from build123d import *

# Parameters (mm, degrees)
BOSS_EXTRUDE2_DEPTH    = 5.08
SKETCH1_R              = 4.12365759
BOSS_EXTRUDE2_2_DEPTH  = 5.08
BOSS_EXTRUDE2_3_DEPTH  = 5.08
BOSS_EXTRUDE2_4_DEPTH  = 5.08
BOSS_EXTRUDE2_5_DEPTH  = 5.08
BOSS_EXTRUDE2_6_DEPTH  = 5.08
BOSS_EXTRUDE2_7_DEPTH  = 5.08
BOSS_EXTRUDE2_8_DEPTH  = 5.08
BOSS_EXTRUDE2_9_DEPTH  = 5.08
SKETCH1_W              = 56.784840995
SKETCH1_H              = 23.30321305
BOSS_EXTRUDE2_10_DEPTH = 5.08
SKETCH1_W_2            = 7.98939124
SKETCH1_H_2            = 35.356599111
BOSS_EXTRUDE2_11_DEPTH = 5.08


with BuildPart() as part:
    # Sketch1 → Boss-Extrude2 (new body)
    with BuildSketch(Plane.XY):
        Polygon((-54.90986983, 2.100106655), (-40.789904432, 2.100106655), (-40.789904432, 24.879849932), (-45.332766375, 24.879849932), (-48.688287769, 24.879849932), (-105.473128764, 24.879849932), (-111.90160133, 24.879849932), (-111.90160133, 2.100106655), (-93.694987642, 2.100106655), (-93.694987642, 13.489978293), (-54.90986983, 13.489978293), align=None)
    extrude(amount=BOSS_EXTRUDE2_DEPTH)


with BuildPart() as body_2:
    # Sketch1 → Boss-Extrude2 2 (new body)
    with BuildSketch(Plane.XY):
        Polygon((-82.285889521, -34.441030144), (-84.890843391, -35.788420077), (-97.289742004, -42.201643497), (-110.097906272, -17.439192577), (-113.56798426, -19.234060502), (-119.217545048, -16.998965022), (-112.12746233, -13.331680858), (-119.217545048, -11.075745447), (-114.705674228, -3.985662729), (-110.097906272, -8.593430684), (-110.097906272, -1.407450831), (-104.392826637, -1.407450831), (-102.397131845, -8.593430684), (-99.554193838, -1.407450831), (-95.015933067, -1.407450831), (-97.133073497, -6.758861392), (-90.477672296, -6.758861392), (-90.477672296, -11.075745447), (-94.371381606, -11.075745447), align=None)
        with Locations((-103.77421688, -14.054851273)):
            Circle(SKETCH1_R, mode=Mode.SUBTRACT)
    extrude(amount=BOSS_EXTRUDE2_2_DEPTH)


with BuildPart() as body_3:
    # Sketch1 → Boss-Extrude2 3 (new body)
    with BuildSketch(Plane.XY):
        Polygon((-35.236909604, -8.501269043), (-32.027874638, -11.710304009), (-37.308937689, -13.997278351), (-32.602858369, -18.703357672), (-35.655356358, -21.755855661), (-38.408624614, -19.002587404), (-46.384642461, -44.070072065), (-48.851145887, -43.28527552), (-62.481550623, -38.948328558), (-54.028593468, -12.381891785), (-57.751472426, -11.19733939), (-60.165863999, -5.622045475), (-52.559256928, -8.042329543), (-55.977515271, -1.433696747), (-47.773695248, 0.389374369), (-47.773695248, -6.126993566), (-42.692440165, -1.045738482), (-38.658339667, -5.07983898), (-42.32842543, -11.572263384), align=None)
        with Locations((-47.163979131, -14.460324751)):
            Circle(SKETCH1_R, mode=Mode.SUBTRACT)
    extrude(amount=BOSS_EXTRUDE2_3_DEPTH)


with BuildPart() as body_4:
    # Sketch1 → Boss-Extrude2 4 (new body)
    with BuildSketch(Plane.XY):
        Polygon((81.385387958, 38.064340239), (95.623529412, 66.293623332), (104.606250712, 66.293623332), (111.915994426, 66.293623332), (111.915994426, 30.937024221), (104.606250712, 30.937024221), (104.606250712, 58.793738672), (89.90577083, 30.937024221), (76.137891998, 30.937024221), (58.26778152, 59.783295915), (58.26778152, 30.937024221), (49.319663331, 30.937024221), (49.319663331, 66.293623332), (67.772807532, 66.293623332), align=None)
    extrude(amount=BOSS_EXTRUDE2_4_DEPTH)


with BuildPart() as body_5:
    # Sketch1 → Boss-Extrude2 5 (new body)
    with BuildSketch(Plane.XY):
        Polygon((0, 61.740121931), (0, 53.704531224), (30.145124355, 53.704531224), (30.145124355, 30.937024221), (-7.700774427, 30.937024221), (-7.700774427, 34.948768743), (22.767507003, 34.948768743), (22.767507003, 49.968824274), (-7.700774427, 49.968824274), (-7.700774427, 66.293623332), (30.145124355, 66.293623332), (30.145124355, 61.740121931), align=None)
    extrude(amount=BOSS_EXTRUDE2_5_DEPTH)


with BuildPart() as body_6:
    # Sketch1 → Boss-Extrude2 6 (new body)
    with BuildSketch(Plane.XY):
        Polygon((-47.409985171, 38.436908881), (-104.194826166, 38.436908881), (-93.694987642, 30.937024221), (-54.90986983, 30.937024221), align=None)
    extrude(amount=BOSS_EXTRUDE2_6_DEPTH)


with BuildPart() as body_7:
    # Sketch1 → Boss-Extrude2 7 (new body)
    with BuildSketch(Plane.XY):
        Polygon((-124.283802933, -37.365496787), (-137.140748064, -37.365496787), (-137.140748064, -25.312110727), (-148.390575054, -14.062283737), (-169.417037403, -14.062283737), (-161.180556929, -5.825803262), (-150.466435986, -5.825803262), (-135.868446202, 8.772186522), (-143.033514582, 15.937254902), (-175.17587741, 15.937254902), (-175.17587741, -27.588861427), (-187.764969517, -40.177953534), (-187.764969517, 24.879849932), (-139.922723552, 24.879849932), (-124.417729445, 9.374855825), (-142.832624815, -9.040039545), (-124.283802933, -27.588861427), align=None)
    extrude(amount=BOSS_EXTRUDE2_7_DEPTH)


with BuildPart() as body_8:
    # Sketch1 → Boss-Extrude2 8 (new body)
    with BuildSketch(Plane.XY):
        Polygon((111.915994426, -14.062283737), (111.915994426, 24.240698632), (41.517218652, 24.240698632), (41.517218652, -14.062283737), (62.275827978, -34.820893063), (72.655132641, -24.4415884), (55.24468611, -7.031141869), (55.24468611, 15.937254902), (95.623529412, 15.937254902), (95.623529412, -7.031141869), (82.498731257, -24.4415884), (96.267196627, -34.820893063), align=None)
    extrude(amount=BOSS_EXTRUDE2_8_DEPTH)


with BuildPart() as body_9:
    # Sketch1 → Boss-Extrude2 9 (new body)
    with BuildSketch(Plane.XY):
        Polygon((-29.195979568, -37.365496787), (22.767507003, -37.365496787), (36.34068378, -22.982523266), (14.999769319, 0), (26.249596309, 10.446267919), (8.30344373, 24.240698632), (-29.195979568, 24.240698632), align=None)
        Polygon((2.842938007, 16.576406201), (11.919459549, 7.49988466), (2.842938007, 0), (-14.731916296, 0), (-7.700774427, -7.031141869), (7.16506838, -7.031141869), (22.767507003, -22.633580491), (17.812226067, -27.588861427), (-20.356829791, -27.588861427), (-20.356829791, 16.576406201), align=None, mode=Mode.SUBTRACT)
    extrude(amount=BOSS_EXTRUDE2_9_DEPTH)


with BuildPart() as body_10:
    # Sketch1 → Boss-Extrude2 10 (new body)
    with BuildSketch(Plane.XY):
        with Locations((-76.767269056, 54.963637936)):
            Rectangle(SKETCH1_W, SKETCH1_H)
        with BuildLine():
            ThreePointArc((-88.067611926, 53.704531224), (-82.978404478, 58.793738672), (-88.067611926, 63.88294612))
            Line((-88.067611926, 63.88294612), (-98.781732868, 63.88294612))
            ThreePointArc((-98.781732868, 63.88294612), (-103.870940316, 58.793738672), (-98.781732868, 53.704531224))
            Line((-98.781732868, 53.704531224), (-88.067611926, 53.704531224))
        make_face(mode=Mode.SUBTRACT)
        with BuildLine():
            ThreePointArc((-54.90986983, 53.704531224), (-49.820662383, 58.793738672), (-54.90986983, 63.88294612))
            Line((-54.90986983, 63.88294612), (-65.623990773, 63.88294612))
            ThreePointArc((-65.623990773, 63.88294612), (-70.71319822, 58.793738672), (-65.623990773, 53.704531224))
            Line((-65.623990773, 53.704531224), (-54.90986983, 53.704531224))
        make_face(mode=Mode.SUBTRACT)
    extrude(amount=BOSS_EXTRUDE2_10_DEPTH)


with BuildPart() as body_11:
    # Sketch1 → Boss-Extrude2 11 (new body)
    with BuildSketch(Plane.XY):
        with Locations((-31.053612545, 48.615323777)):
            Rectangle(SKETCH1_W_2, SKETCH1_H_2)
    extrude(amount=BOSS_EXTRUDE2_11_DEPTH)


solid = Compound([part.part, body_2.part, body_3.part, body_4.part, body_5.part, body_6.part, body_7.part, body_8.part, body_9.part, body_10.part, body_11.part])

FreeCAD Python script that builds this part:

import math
import FreeCAD as App
import Part
import Sketcher

V = App.Vector
Q = App.Units.Quantity


def add_polygon(sketch, points):
    """Adds a closed chain of lines whose ends are joined by coincident constraints."""
    first, n = sketch.GeometryCount, len(points)
    for a, b in zip(points, points[1:] + points[:1]):
        sketch.addGeometry(Part.LineSegment(App.Vector(*a, 0), App.Vector(*b, 0)), False)
    for i in range(n):
        sketch.addConstraint(Sketcher.Constraint("Coincident", first + i, 2, first + (i + 1) % n, 1))

doc = App.newDocument("Part")
body = doc.addObject("PartDesign::Body", "Body")

sketch1 = body.newObject("Sketcher::SketchObject", "Sketch")
sketch1.AttachmentSupport = (doc.getObject("XY_Plane"), [""])
sketch1.MapMode = "FlatFace"
add_polygon(sketch1, [(-55, 2), (-41, 2), (-41, 25), (-112, 25), (-112, 2), (-94, 2), (-94, 13), (-55, 13)])
sketch1.addConstraint([
    Sketcher.Constraint("Horizontal", 0),
    Sketcher.Constraint("Vertical", 1),
    Sketcher.Constraint("Horizontal", 2),
    Sketcher.Constraint("Vertical", 3),
    Sketcher.Constraint("Horizontal", 4),
    Sketcher.Constraint("Vertical", 5),
    Sketcher.Constraint("Horizontal", 6),
    Sketcher.Constraint("Vertical", 7),
    Sketcher.Constraint("Horizontal", 0, 2, 3, 2),
    Sketcher.Constraint("DistanceY", 5, 1, 5, 2, 11.389872),
    Sketcher.Constraint("DistanceX", 2, 2, -1, 1, 111.901601),
    Sketcher.Constraint("DistanceX", 0, 1, 0, 2, 14.119965),
    Sketcher.Constraint("DistanceX", 2, 2, 2, 1, 71.111697),
    Sketcher.Constraint("DistanceX", 4, 1, 4, 2, 18.206614),
    Sketcher.Constraint("DistanceY", 1, 1, 1, 2, 22.779743),
    Sketcher.Constraint("DistanceY", -1, 1, 1, 2, 24.87985),
])
pad1 = body.newObject("PartDesign::Pad", "Pad")
pad1.Profile = sketch1
pad1.Length = Q("0.2 in")
body2 = doc.addObject("PartDesign::Body", "Body001")

sketch2 = body2.newObject("Sketcher::SketchObject", "Sketch001")
sketch2.AttachmentSupport = (doc.getObject("XY_Plane001"), [""])
sketch2.MapMode = "FlatFace"
add_polygon(sketch2, [(-84.9, -35.8), (-82.3, -34.4), (-94.4, -11.1), (-90.5, -11.1), (-90.5, -6.8), (-97.1, -6.8), (-95, -1.4), (-99.6, -1.4), (-102.4, -8.6), (-104.4, -1.4), (-110.1, -1.4), (-110.1, -8.6), (-114.7, -4), (-119.2, -11.1), (-112.1, -13.3), (-119.2, -17), (-113.6, -19.2), (-110.1, -17.4), (-97.3, -42.2)])
sketch2.addGeometry(Part.Circle(V(-103.8, -14.1, 0), V(0, 0, 1), 4.1), False)
sketch2.addConstraint([
    Sketcher.Constraint("Horizontal", 2),
    Sketcher.Constraint("Vertical", 3),
    Sketcher.Constraint("Horizontal", 4),
    Sketcher.Constraint("Horizontal", 6),
    Sketcher.Constraint("Horizontal", 9),
    Sketcher.Constraint("Vertical", 10),
    Sketcher.Constraint("Perpendicular", 0, 1),
    Sketcher.Constraint("Parallel", 5, 7),
    Sketcher.Constraint("Perpendicular", 1, 14),
    Sketcher.Constraint("Perpendicular", 7, 15),
    Sketcher.Constraint("Parallel", 14, 16),
    Sketcher.Constraint("Perpendicular", 16, 17),
    Sketcher.Constraint("Perpendicular", 17, 18),
    Sketcher.Constraint("Horizontal", 6, 2, 8, 2),
    Sketcher.Constraint("Horizontal", 7, 2, 10, 2),
    Sketcher.Constraint("Horizontal", 2, 2, 12, 2),
    Sketcher.Constraint("Vertical", 12, 2, 14, 2),
    Sketcher.Constraint("Vertical", 10, 2, 16, 2),
    Sketcher.Constraint("Angle", 11, Q("135 deg")),
    Sketcher.Constraint("Diameter", 19, 8.247315),
    Sketcher.Constraint("DistanceX", 4, 2, 4, 1, 6.655401),
    Sketcher.Constraint("DistanceX", 2, 1, 2, 2, 3.893709),
    Sketcher.Constraint("DistanceX", 6, 2, 6, 1, 4.538261),
    Sketcher.Constraint("DistanceX", 9, 2, 9, 1, 5.70508),
    Sketcher.Constraint("DistanceY", 10, 2, 10, 1, 7.18598),
    Sketcher.Constraint("DistanceY", 19, 3, 5, 2, 12.6474),
    Sketcher.Constraint("DistanceX", 7, 2, 5, 2, 7.381199),
    Sketcher.Constraint("DistanceY", 17, 2, 1, 2, 31.125898),
    Sketcher.Constraint("DistanceX", 17, 2, 18, 2, 12.398899),
    Sketcher.Constraint("Distance", 1, 26.30581),
    Sketcher.Constraint("Distance", 13, 7.44033),
    Sketcher.Constraint("Distance", 14, 7.982371),
    Sketcher.Constraint("Distance", 17, 27.87881),
    Sketcher.Constraint("DistanceY", 3, 1, 3, 2, 4.316884),
    Sketcher.Constraint("DistanceY", 19, 3, -1, 1, 14.054851),
    Sketcher.Constraint("DistanceX", 0, 2, -1, 1, 82.28589),
    Sketcher.Constraint("DistanceY", 0, 2, -1, 1, 34.44103),
    Sketcher.Constraint("DistanceX", 1, 2, -1, 1, 94.371382),
    Sketcher.Constraint("DistanceY", 15, 2, -1, 1, 19.234061),
    Sketcher.Constraint("DistanceX", 8, 2, 19, 3, 0.61861),
    Sketcher.Constraint("DistanceY", 11, 2, 9, 2, 2.578212),
])
pad2 = body2.newObject("PartDesign::Pad", "Pad001")
pad2.Profile = sketch2
pad2.Length = Q("0.2 in")
body3 = doc.addObject("PartDesign::Body", "Body002")

sketch3 = body3.newObject("Sketcher::SketchObject", "Sketch002")
sketch3.AttachmentSupport = (doc.getObject("XY_Plane002"), [""])
sketch3.MapMode = "FlatFace"
add_polygon(sketch3, [(-32, -11.7), (-35.2, -8.5), (-42.3, -11.6), (-38.7, -5.1), (-42.7, -1), (-47.8, -6.1), (-47.8, 0.4), (-56, -1.4), (-52.6, -8), (-60.2, -5.6), (-57.8, -11.2), (-54, -12.4), (-62.5, -38.9), (-48.9, -43.3), (-46.4, -44.1), (-38.4, -19), (-35.7, -21.8), (-32.6, -18.7), (-37.3, -14)])
sketch3.addGeometry(Part.Circle(V(-47.2, -14.5, 0), V(0, 0, 1), 4.1), False)
sketch3.addConstraint([
    Sketcher.Constraint("Vertical", 5),
    Sketcher.Constraint("Parallel", 0, 3),
    Sketcher.Constraint("Perpendicular", 3, 4),
    Sketcher.Constraint("Perpendicular", 1, 9),
    Sketcher.Constraint("Parallel", 8, 10),
    Sketcher.Constraint("Perpendicular", 10, 11),
    Sketcher.Constraint("Perpendicular", 11, 12),
    Sketcher.Constraint("Parallel", 12, 13),
    Sketcher.Constraint("Perpendicular", 13, 14),
    Sketcher.Constraint("Perpendicular", 4, 15),
    Sketcher.Constraint("Perpendicular", 15, 16),
    Sketcher.Constraint("Perpendicular", 16, 17),
    Sketcher.Constraint("Perpendicular", 9, 18),
    Sketcher.Constraint("Angle", 0, Q("135 deg")),
    Sketcher.Constraint("Diameter", 19, 8.247315),
    Sketcher.Constraint("DistanceX", 12, 2, 1, 2, Q("0.2568 in")),
    Sketcher.Constraint("Distance", 17, 6.655401),
    Sketcher.Constraint("DistanceX", 3, 2, 2, 2, 4.0341),
    Sketcher.Constraint("DistanceY", 19, 3, 5, 2, 14.849699),
    Sketcher.Constraint("DistanceX", 10, 2, 4, 2, 6.254898),
    Sketcher.Constraint("DistanceY", 10, 2, 4, 2, 6.254898),
    Sketcher.Constraint("DistanceY", 11, 2, 7, 2, 30.905999),
    Sketcher.Constraint("DistanceX", 1, 2, 14, 2, 3.919801),
    Sketcher.Constraint("Distance", 0, 4.538261),
    Sketcher.Constraint("Distance", 1, 7.727911),
    Sketcher.Constraint("Distance", 4, 7.18598),
    Sketcher.Constraint("Distance", 7, 7.44033),
    Sketcher.Constraint("Distance", 8, 7.982371),
    Sketcher.Constraint("Distance", 11, 27.87881),
    Sketcher.Constraint("Distance", 14, 26.30581),
    Sketcher.Constraint("Distance", 15, 3.893709),
    Sketcher.Constraint("DistanceY", 5, 1, 5, 2, 6.516368),
    Sketcher.Constraint("DistanceX", 19, 3, -1, 1, 47.163979),
    Sketcher.Constraint("DistanceX", 0, 2, -1, 1, 35.23691),
    Sketcher.Constraint("DistanceY", 0, 2, -1, 1, 8.501269),
    Sketcher.Constraint("DistanceX", 2, 2, -1, 1, 38.65834),
    Sketcher.Constraint("DistanceY", 2, 2, -1, 1, 5.079839),
    Sketcher.Constraint("DistanceY", 7, 2, -1, 1, 8.04233),
    Sketcher.Constraint("DistanceY", 9, 2, -1, 1, 11.197339),
    Sketcher.Constraint("DistanceX", 16, 2, -1, 1, 32.602858),
    Sketcher.Constraint("DistanceX", 6, 2, 5, 2, 8.20382),
])
pad3 = body3.newObject("PartDesign::Pad", "Pad002")
pad3.Profile = sketch3
pad3.Length = Q("0.2 in")
body4 = doc.addObject("PartDesign::Body", "Body003")

sketch4 = body4.newObject("Sketcher::SketchObject", "Sketch003")
sketch4.AttachmentSupport = (doc.getObject("XY_Plane003"), [""])
sketch4.MapMode = "FlatFace"
add_polygon(sketch4, [(96, 66), (81, 38), (68, 66), (49, 66), (49, 31), (58, 31), (58, 60), (76, 31), (90, 31), (105, 59), (105, 31), (112, 31), (112, 66)])
sketch4.addConstraint([
    Sketcher.Constraint("Horizontal", 2),
    Sketcher.Constraint("Vertical", 3),
    Sketcher.Constraint("Horizontal", 4),
    Sketcher.Constraint("Vertical", 5),
    Sketcher.Constraint("Horizontal", 7),
    Sketcher.Constraint("Vertical", 9),
    Sketcher.Constraint("Horizontal", 10),
    Sketcher.Constraint("Vertical", 11),
    Sketcher.Constraint("Horizontal", 12),
    Sketcher.Constraint("Horizontal", 4, 2, 6, 2),
    Sketcher.Constraint("Horizontal", 7, 2, 9, 2),
    Sketcher.Constraint("Horizontal", 2, 2, 11, 2),
    Sketcher.Constraint("DistanceY", 3, 2, 3, 1, 35.356599),
    Sketcher.Constraint("DistanceX", 4, 1, 4, 2, 8.948118),
    Sketcher.Constraint("DistanceX", 7, 1, 7, 2, 13.767879),
    Sketcher.Constraint("DistanceY", 5, 1, 5, 2, 28.846272),
    Sketcher.Constraint("DistanceY", 0, 2, 8, 2, 20.729398),
    Sketcher.Constraint("Distance", 0, 31.616722),
    Sketcher.Constraint("Distance", 8, 31.497629),
    Sketcher.Constraint("DistanceX", 2, 2, 2, 1, 18.453144),
    Sketcher.Constraint("DistanceX", 10, 1, 10, 2, 7.309744),
    Sketcher.Constraint("DistanceX", 12, 2, 12, 1, 16.292465),
    Sketcher.Constraint("DistanceY", 9, 2, 9, 1, 27.856714),
    Sketcher.Constraint("DistanceY", -1, 1, 0, 2, 38.06434),
    Sketcher.Constraint("DistanceX", -1, 1, 4, 2, 58.267782),
    Sketcher.Constraint("DistanceX", -1, 1, 6, 2, 76.137892),
])
pad4 = body4.newObject("PartDesign::Pad", "Pad003")
pad4.Profile = sketch4
pad4.Length = Q("0.2 in")
body5 = doc.addObject("PartDesign::Body", "Body004")

sketch5 = body5.newObject("Sketcher::SketchObject", "Sketch004")
sketch5.AttachmentSupport = (doc.getObject("XY_Plane004"), [""])
sketch5.MapMode = "FlatFace"
add_polygon(sketch5, [(0, 53.7), (0, 61.7), (30.1, 61.7), (30.1, 66.3), (-7.7, 66.3), (-7.7, 50), (22.8, 50), (22.8, 34.9), (-7.7, 34.9), (-7.7, 30.9), (30.1, 30.9), (30.1, 53.7)])
sketch5.addConstraint([
    Sketcher.Constraint("Vertical", 0),
    Sketcher.Constraint("Horizontal", 1),
    Sketcher.Constraint("Vertical", 2),
    Sketcher.Constraint("Horizontal", 3),
    Sketcher.Constraint("Vertical", 4),
    Sketcher.Constraint("Horizontal", 5),
    Sketcher.Constraint("Vertical", 6),
    Sketcher.Constraint("Horizontal", 7),
    Sketcher.Constraint("Vertical", 8),
    Sketcher.Constraint("Horizontal", 9),
    Sketcher.Constraint("Vertical", 10),
    Sketcher.Constraint("Horizontal", 11),
    Sketcher.Constraint("PointOnObject", 0, 2, -2),
    Sketcher.Constraint("Vertical", 4, 2, 7, 2),
    Sketcher.Constraint("Vertical", 2, 2, 9, 2),
    Sketcher.Constraint("DistanceX", 3, 2, 3, 1, 37.845899),
    Sketcher.Constraint("DistanceY", 2, 1, 2, 2, 4.553501),
    Sketcher.Constraint("DistanceY", 4, 2, 4, 1, 16.324799),
    Sketcher.Constraint("DistanceX", 5, 1, 5, 2, 30.468281),
    Sketcher.Constraint("DistanceY", 0, 1, 0, 2, 8.035591),
    Sketcher.Constraint("DistanceY", 8, 2, 4, 2, 19.0318),
    Sketcher.Constraint("DistanceX", 1, 1, 1, 2, 30.145124),
    Sketcher.Constraint("DistanceY", 6, 2, 6, 1, 15.020056),
    Sketcher.Constraint("DistanceY", -1, 1, 0, 2, 61.740122),
])
pad5 = body5.newObject("PartDesign::Pad", "Pad004")
pad5.Profile = sketch5
pad5.Length = Q("0.2 in")
body6 = doc.addObject("PartDesign::Body", "Body005")

sketch6 = body6.newObject("Sketcher::SketchObject", "Sketch005")
sketch6.AttachmentSupport = (doc.getObject("XY_Plane005"), [""])
sketch6.MapMode = "FlatFace"
add_polygon(sketch6, [(-47, 38), (-104, 38), (-94, 31), (-55, 31)])
sketch6.addConstraint([
    Sketcher.Constraint("Horizontal", 0),
    Sketcher.Constraint("Horizontal", 2),
    Sketcher.Constraint("Angle", 3, Q("45 deg")),
    Sketcher.Constraint("DistanceX", 0, 2, 0, 1, 56.784841),
    Sketcher.Constraint("Distance", 1, 12.903289),
    Sketcher.Constraint("Distance", 3, 10.606439),
    Sketcher.Constraint("DistanceY", -1, 1, 0, 2, 38.436909),
    Sketcher.Constraint("DistanceX", 2, 2, -1, 1, 54.90987),
])
pad6 = body6.newObject("PartDesign::Pad", "Pad005")
pad6.Profile = sketch6
pad6.Length = Q("0.2 in")
body7 = doc.addObject("PartDesign::Body", "Body006")

sketch7 = body7.newObject("Sketcher::SketchObject", "Sketch006")
sketch7.AttachmentSupport = (doc.getObject("XY_Plane006"), [""])
sketch7.MapMode = "FlatFace"
add_polygon(sketch7, [(-137, -37), (-124, -37), (-124, -28), (-143, -9), (-124, 9), (-140, 25), (-188, 25), (-188, -40), (-175, -28), (-175, 16), (-143, 16), (-136, 9), (-150, -6), (-161, -6), (-169, -14), (-148, -14), (-137, -25)])
sketch7.addConstraint([
    Sketcher.Constraint("Horizontal", 0),
    Sketcher.Constraint("Vertical", 1),
    Sketcher.Constraint("Horizontal", 5),
    Sketcher.Constraint("Vertical", 6),
    Sketcher.Constraint("Vertical", 8),
    Sketcher.Constraint("Horizontal", 9),
    Sketcher.Constraint("Horizontal", 12),
    Sketcher.Constraint("Horizontal", 14),
    Sketcher.Constraint("Vertical", 16),
    Sketcher.Constraint("Perpendicular", 2, 3),
    Sketcher.Constraint("Perpendicular", 3, 4),
    Sketcher.Constraint("Perpendicular", 4, 7),
    Sketcher.Constraint("Perpendicular", 7, 10),
    Sketcher.Constraint("Perpendicular", 10, 11),
    Sketcher.Constraint("Parallel", 11, 13),
    Sketcher.Constraint("Perpendicular", 13, 15),
    Sketcher.Constraint("Horizontal", 1, 2, 7, 2),
    Sketcher.Constraint("Angle", 2, Q("135 deg")),
    Sketcher.Constraint("DistanceX", 12, 2, 12, 1, 10.714121),
    Sketcher.Constraint("DistanceX", 2, 2, 4, 2, 2.909901),
    Sketcher.Constraint("DistanceY", 3, 2, 8, 2, 6.562399),
    Sketcher.Constraint("DistanceX", 13, 2, 11, 2, 18.950601),
    Sketcher.Constraint("DistanceX", 0, 1, 0, 2, 12.856945),
    Sketcher.Constraint("DistanceX", 5, 2, 5, 1, 47.842246),
    Sketcher.Constraint("DistanceX", 9, 1, 9, 2, 32.142363),
    Sketcher.Constraint("DistanceX", 14, 1, 14, 2, 21.026462),
    Sketcher.Constraint("DistanceY", 1, 1, 1, 2, 9.776635),
    Sketcher.Constraint("DistanceY", 6, 2, 6, 1, 65.057803),
    Sketcher.Constraint("DistanceY", 8, 1, 8, 2, 43.526116),
    Sketcher.Constraint("DistanceY", 16, 2, 16, 1, 12.053386),
    Sketcher.Constraint("DistanceY", 1, 2, -1, 1, 27.588861),
    Sketcher.Constraint("DistanceY", 2, 2, -1, 1, 9.04004),
    Sketcher.Constraint("DistanceX", 3, 2, -1, 1, 124.417729),
    Sketcher.Constraint("DistanceX", 9, 2, 10, 2, 7.165068),
])
pad7 = body7.newObject("PartDesign::Pad", "Pad006")
pad7.Profile = sketch7
pad7.Length = Q("0.2 in")
body8 = doc.addObject("PartDesign::Body", "Body007")

sketch8 = body8.newObject("Sketcher::SketchObject", "Sketch007")
sketch8.AttachmentSupport = (doc.getObject("XY_Plane007"), [""])
sketch8.MapMode = "FlatFace"
add_polygon(sketch8, [(112, -14), (112, 24), (42, 24), (42, -14), (62, -35), (73, -24), (55, -7), (55, 16), (96, 16), (96, -7), (82, -24), (96, -35)])
sketch8.addConstraint([
    Sketcher.Constraint("Vertical", 0),
    Sketcher.Constraint("Horizontal", 1),
    Sketcher.Constraint("Vertical", 2),
    Sketcher.Constraint("Vertical", 6),
    Sketcher.Constraint("Horizontal", 7),
    Sketcher.Constraint("Vertical", 8),
    Sketcher.Constraint("Perpendicular", 3, 4),
    Sketcher.Constraint("Perpendicular", 4, 5),
    Sketcher.Constraint("Perpendicular", 9, 10),
    Sketcher.Constraint("Perpendicular", 10, 11),
    Sketcher.Constraint("Horizontal", 5, 2, 8, 2),
    Sketcher.Constraint("Horizontal", 4, 2, 9, 2),
    Sketcher.Constraint("Horizontal", 3, 2, 10, 2),
    Sketcher.Constraint("Horizontal", 2, 2, 11, 2),
    Sketcher.Constraint("Angle", 3, Q("-45 deg")),
    Sketcher.Constraint("Distance", 9, 21.803302),
    Sketcher.Constraint("DistanceY", -1, 1, 0, 2, 24.240699),
    Sketcher.Constraint("DistanceX", 3, 2, 8, 2, 33.347701),
    Sketcher.Constraint("DistanceX", 4, 2, 9, 2, 9.843599),
    Sketcher.Constraint("DistanceX", 9, 2, 8, 2, 13.124798),
    Sketcher.Constraint("DistanceX", 1, 2, 1, 1, 70.398776),
    Sketcher.Constraint("DistanceY", 0, 1, 0, 2, 38.302982),
    Sketcher.Constraint("DistanceY", 6, 1, 6, 2, 22.968397),
    Sketcher.Constraint("DistanceX", -1, 1, 1, 2, 41.517219),
])
pad8 = body8.newObject("PartDesign::Pad", "Pad007")
pad8.Profile = sketch8
pad8.Length = Q("0.2 in")
body9 = doc.addObject("PartDesign::Body", "Body008")

sketch9 = body9.newObject("Sketcher::SketchObject", "Sketch008")
sketch9.AttachmentSupport = (doc.getObject("XY_Plane008"), [""])
sketch9.MapMode = "FlatFace"
add_polygon(sketch9, [(-29, -37), (23, -37), (36, -23), (15, 0), (26, 10), (8, 24), (-29, 24)])
add_polygon(sketch9, [(-20, 17), (3, 17), (12, 7), (3, 0), (-15, 0), (-8, -7), (7, -7), (23, -23), (18, -28), (-20, -28)])
sketch9.addConstraint([
    Sketcher.Constraint("Horizontal", 0),
    Sketcher.Constraint("Horizontal", 5),
    Sketcher.Constraint("Vertical", 6),
    Sketcher.Constraint("Horizontal", 7),
    Sketcher.Constraint("Horizontal", 10),
    Sketcher.Constraint("Horizontal", 12),
    Sketcher.Constraint("Horizontal", 15),
    Sketcher.Constraint("Vertical", 16),
    Sketcher.Constraint("PointOnObject", 2, 2, -1),
    Sketcher.Constraint("PointOnObject", 9, 2, -1),
    Sketcher.Constraint("Perpendicular", 2, 3),
    Sketcher.Constraint("Parallel", 8, 11),
    Sketcher.Constraint("Parallel", 11, 13),
    Sketcher.Constraint("Perpendicular", 13, 14),
    Sketcher.Constraint("Vertical", 7, 2, 9, 2),
    Sketcher.Constraint("Vertical", 0, 2, 13, 2),
    Sketcher.Constraint("Angle", 8, Q("-45 deg")),
    Sketcher.Constraint("DistanceY", -1, 1, 4, 2, 24.240699),
    Sketcher.Constraint("DistanceX", 12, 2, 2, 2, 7.834701),
    Sketcher.Constraint("DistanceX", 15, 2, 12, 2, 27.521898),
    Sketcher.Constraint("Distance", 8, 12.83614),
    Sketcher.Constraint("Distance", 9, 11.774188),
    Sketcher.Constraint("Distance", 13, 22.06518),
    Sketcher.Constraint("DistanceX", 0, 1, 0, 2, 51.963487),
    Sketcher.Constraint("DistanceX", 5, 2, 5, 1, 37.499423),
    Sketcher.Constraint("DistanceX", 7, 1, 7, 2, 23.199768),
    Sketcher.Constraint("DistanceX", 10, 2, 10, 1, 17.574854),
    Sketcher.Constraint("DistanceX", 12, 1, 12, 2, 14.865843),
    Sketcher.Constraint("DistanceX", 15, 2, 15, 1, 38.169056),
    Sketcher.Constraint("DistanceY", 6, 2, 6, 1, 61.606195),
    Sketcher.Constraint("DistanceX", -1, 1, 2, 2, 14.999769),
    Sketcher.Constraint("DistanceY", 1, 2, 3, 2, 33.428791),
    Sketcher.Constraint("DistanceX", 0, 2, 3, 2, 3.482089),
    Sketcher.Constraint("DistanceY", 3, 2, 4, 2, 13.794431),
])
pad9 = body9.newObject("PartDesign::Pad", "Pad008")
pad9.Profile = sketch9
pad9.Length = Q("0.2 in")
body10 = doc.addObject("PartDesign::Body", "Body009")

sketch10 = body10.newObject("Sketcher::SketchObject", "Sketch009")
sketch10.AttachmentSupport = (doc.getObject("XY_Plane009"), [""])
sketch10.MapMode = "FlatFace"
add_polygon(sketch10, [(-105, 67), (-105, 43), (-48, 43), (-48, 67)])
sketch10.addGeometry(Part.ArcOfCircle(Part.Circle(V(-88, 59, 0), V(0, 0, 1), 5), math.radians(-90), math.radians(90)), False)
sketch10.addGeometry(Part.LineSegment(V(-88, 54, 0), V(-99, 54, 0)), False)
sketch10.addGeometry(Part.ArcOfCircle(Part.Circle(V(-99, 59, 0), V(0, 0, 1), 5), math.radians(90), math.radians(270)), False)
sketch10.addGeometry(Part.LineSegment(V(-99, 64, 0), V(-88, 64, 0)), False)
sketch10.addGeometry(Part.ArcOfCircle(Part.Circle(V(-55, 59, 0), V(0, 0, 1), 5), math.radians(-90), math.radians(90)), False)
sketch10.addGeometry(Part.LineSegment(V(-55, 54, 0), V(-66, 54, 0)), False)
sketch10.addGeometry(Part.ArcOfCircle(Part.Circle(V(-66, 59, 0), V(0, 0, 1), 5), math.radians(90), math.radians(270)), False)
sketch10.addGeometry(Part.LineSegment(V(-66, 64, 0), V(-55, 64, 0)), False)
sketch10.addConstraint([
    Sketcher.Constraint("Tangent", 4, 1, 5, 1),
    Sketcher.Constraint("Tangent", 5, 2, 6, 2),
    Sketcher.Constraint("Tangent", 6, 1, 7, 1),
    Sketcher.Constraint("Tangent", 7, 2, 4, 2),
    Sketcher.Constraint("Tangent", 8, 1, 9, 1),
    Sketcher.Constraint("Tangent", 9, 2, 10, 2),
    Sketcher.Constraint("Tangent", 10, 1, 11, 1),
    Sketcher.Constraint("Tangent", 11, 2, 8, 2),
    Sketcher.Constraint("Vertical", 0),
    Sketcher.Constraint("Horizontal", 1),
    Sketcher.Constraint("Vertical", 2),
    Sketcher.Constraint("Horizontal", 3),
    Sketcher.Constraint("Horizontal", 5),
    Sketcher.Constraint("Horizontal", 7),
    Sketcher.Constraint("Horizontal", 9),
    Sketcher.Constraint("Horizontal", 11),
    Sketcher.Constraint("Equal", 6, 8),
    Sketcher.Constraint("Horizontal", 6, 3, 8, 3),
    Sketcher.Constraint("Equal", 7, 9),
    Sketcher.Constraint("Radius", 4, 5.089207),
    Sketcher.Constraint("DistanceX", 10, 3, 1, 2, Q("0.6791001 in")),
    Sketcher.Constraint("DistanceX", 1, 1, 1, 2, 56.784841),
    Sketcher.Constraint("DistanceX", 5, 2, 5, 1, 10.714121),
    Sketcher.Constraint("DistanceY", 0, 2, 4, 1, 10.3925),
    Sketcher.Constraint("DistanceY", 6, 1, 3, 2, 2.732298),
    Sketcher.Constraint("DistanceX", 4, 3, -1, 1, 88.067612),
    Sketcher.Constraint("DistanceY", -1, 1, 4, 3, 58.793739),
    Sketcher.Constraint("DistanceX", 8, 3, -1, 1, 54.90987),
])
pad10 = body10.newObject("PartDesign::Pad", "Pad009")
pad10.Profile = sketch10
pad10.Length = Q("0.2 in")
body11 = doc.addObject("PartDesign::Body", "Body010")

sketch11 = body11.newObject("Sketcher::SketchObject", "Sketch010")
sketch11.AttachmentSupport = (doc.getObject("XY_Plane010"), [""])
sketch11.MapMode = "FlatFace"
add_polygon(sketch11, [(-35, 66), (-35, 31), (-27, 31), (-27, 66)])
sketch11.addConstraint([
    Sketcher.Constraint("Vertical", 0),
    Sketcher.Constraint("Horizontal", 1),
    Sketcher.Constraint("Vertical", 2),
    Sketcher.Constraint("Horizontal", 3),
    Sketcher.Constraint("DistanceY", 0, 2, 0, 1, 35.356599),
    Sketcher.Constraint("DistanceX", 1, 1, 1, 2, 7.989391),
    Sketcher.Constraint("DistanceX", 0, 2, -1, 1, 35.048308),
    Sketcher.Constraint("DistanceY", -1, 1, 0, 2, 30.937024),
])
pad11 = body11.newObject("PartDesign::Pad", "Pad010")
pad11.Profile = sketch11
pad11.Length = Q("0.2 in")

doc.recompute()
